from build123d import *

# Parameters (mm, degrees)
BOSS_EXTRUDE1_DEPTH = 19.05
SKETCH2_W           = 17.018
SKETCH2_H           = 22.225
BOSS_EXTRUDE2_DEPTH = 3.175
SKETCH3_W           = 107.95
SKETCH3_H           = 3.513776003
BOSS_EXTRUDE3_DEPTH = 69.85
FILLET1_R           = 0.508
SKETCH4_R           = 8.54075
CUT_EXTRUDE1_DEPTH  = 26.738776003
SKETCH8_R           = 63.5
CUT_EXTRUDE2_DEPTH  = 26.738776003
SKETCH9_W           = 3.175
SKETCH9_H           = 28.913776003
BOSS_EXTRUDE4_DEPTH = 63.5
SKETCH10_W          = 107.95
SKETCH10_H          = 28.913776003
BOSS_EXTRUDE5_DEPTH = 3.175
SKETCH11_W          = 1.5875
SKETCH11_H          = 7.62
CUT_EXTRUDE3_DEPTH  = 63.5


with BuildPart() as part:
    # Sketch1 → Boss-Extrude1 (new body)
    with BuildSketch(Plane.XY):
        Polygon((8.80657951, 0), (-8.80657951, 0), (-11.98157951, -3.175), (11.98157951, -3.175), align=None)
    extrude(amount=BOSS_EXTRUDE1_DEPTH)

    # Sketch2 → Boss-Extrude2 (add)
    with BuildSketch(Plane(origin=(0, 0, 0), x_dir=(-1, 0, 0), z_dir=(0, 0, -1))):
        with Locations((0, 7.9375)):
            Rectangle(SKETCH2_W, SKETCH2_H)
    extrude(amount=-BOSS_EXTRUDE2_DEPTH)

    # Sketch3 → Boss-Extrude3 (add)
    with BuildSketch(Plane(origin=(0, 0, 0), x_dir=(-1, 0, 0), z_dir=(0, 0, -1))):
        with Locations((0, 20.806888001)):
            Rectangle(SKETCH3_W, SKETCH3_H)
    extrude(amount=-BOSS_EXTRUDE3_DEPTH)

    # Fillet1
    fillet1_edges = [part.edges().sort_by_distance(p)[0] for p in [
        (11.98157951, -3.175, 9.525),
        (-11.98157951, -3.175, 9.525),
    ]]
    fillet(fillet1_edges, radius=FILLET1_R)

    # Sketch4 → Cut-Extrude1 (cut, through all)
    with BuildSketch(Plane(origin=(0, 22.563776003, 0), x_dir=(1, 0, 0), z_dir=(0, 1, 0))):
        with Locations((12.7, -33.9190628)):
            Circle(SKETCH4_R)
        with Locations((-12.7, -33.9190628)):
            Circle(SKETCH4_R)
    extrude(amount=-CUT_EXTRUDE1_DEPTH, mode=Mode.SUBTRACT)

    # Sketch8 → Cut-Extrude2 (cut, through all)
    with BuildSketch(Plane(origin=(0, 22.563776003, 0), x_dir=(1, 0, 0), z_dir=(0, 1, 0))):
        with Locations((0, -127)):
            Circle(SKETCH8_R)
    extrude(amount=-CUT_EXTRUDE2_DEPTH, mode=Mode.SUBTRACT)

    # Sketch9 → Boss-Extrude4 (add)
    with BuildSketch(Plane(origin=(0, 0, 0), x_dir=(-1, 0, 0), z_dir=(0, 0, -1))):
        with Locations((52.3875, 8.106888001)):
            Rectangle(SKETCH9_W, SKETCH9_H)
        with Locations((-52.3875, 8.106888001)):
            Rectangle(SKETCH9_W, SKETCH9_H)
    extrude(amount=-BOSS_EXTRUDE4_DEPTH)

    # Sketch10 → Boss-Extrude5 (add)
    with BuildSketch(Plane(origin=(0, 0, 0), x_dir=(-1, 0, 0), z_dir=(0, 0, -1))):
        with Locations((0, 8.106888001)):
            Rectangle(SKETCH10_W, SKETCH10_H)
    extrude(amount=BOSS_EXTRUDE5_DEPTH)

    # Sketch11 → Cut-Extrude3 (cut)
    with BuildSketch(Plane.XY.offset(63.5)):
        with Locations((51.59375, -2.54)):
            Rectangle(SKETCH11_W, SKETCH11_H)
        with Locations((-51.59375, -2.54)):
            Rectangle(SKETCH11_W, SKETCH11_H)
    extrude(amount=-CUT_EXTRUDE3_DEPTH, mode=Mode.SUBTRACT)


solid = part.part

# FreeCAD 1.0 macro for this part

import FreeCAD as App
import Part
import Sketcher
Q = App.Units.Quantity


def edges_at(feature, points):
    """Names of the edges that pass closest to the given points."""
    edges = feature.Shape.Edges
    near = lambda p: min(range(len(edges)), key=lambda i: edges[i].distToShape(Part.Vertex(*p))[0])
    return sorted({f"Edge{near(p) + 1}" for p in points})


def add_polygon(sketch, points):
    """Adds a closed chain of lines whose ends are joined by coincident constraints."""
    first, n = sketch.GeometryCount, len(points)
    for a, b in zip(points, points[1:] + points[:1]):
        sketch.addGeometry(Part.LineSegment(App.Vector(*a, 0), App.Vector(*b, 0)), False)
    for i in range(n):
        sketch.addConstraint(Sketcher.Constraint("Coincident", first + i, 2, first + (i + 1) % n, 1))

doc = App.newDocument("Part")
body = doc.addObject("PartDesign::Body", "Body")

# Sketch on XY plane
sketch1 = body.newObject("Sketcher::SketchObject", "Sketch")
sketch1.AttachmentSupport = (doc.getObject("XY_Plane"), [""])
sketch1.MapMode = "FlatFace"
add_polygon(sketch1, [(8.8, 0), (-8.8, 0), (-12, -3.2), (12, -3.2)])  # lines 0-3
sketch1.addConstraint([
    Sketcher.Constraint("Horizontal", 0),
    Sketcher.Constraint("Horizontal", 2),
    Sketcher.Constraint("Symmetric", 0, 2, 3, 2, -1, 1),
    Sketcher.Constraint("Perpendicular", 1, 3),
    Sketcher.Constraint("Equal", 1, 3),
    Sketcher.Constraint("DistanceY", 1, 2, -1, 1, Q("0.125 in")),
    Sketcher.Constraint("DistanceX", 0, 2, 0, 1, 17.613159),
])
pad1 = body.newObject("PartDesign::Pad", "Pad")
pad1.Profile = sketch1
pad1.Length = Q("0.75 in")

# Sketch on XY plane
sketch2 = body.newObject("Sketcher::SketchObject", "Sketch001")
sketch2.AttachmentSupport = (doc.getObject("XY_Plane"), [""])
sketch2.MapMode = "FlatFace"
add_polygon(sketch2, [(9, 19), (9, -3), (-9, -3), (-9, 19)])  # lines 0-3
sketch2.addConstraint([
    Sketcher.Constraint("Vertical", 0),
    Sketcher.Constraint("Horizontal", 1),
    Sketcher.Constraint("Vertical", 2),
    Sketcher.Constraint("Horizontal", 3),
    Sketcher.Constraint("DistanceX", 1, 2, 1, 1, Q("0.67 in")),
    Sketcher.Constraint("DistanceY", 0, 2, 0, 1, Q("0.875 in")),
    Sketcher.Constraint("DistanceY", -1, 1, 2, 2, Q("0.75 in")),
    Sketcher.Constraint("DistanceX", -1, 1, 0, 2, Q("0.335 in")),
])
pad2 = body.newObject("PartDesign::Pad", "Pad001")
pad2.Profile = sketch2
pad2.Length = Q("0.125 in")

# Sketch on XY plane
sketch3 = body.newObject("Sketcher::SketchObject", "Sketch002")
sketch3.AttachmentSupport = (doc.getObject("XY_Plane"), [""])
sketch3.MapMode = "FlatFace"
add_polygon(sketch3, [(54, 22.6), (54, 19.1), (-54, 19.1), (-54, 22.6)])  # lines 0-3
sketch3.addConstraint([
    Sketcher.Constraint("Vertical", 0),
    Sketcher.Constraint("Horizontal", 1),
    Sketcher.Constraint("Vertical", 2),
    Sketcher.Constraint("Horizontal", 3),
    Sketcher.Constraint("DistanceX", 1, 2, 1, 1, Q("4.25 in")),
    Sketcher.Constraint("DistanceY", -1, 1, 0, 2, Q("0.75 in")),
    Sketcher.Constraint("DistanceX", -1, 1, 0, 2, Q("2.125 in")),
    Sketcher.Constraint("DistanceY", 0, 2, 0, 1, 3.513776),
])
pad3 = body.newObject("PartDesign::Pad", "Pad002")
pad3.Profile = sketch3
pad3.Length = Q("2.75 in")
doc.recompute()

fillet = body.newObject("PartDesign::Fillet", "Fillet")
fillet.Base = (pad3, edges_at(pad3, [(11.982, -3.175, 9.525), (-11.982, -3.175, 9.525)]))
fillet.Radius = Q("0.02 in")

# Sketch on XZ plane
sketch4 = body.newObject("Sketcher::SketchObject", "Sketch003")
sketch4.AttachmentSupport = (doc.getObject("XZ_Plane"), [""])
sketch4.MapMode = "FlatFace"
sketch4.AttachmentOffset = App.Placement(App.Vector(0, 0, -22.563776), App.Rotation())
sketch4.addGeometry([
    Part.Circle(App.Vector(13, 34, 0), App.Vector(0, 0, 1), 9),
    Part.Circle(App.Vector(-13, 34, 0), App.Vector(0, 0, 1), 9),
], False)
sketch4.addConstraint([
    Sketcher.Constraint("Equal", 0, 1),
    Sketcher.Constraint("Symmetric", 0, 3, 1, 3, -2),
    Sketcher.Constraint("DistanceX", 1, 3, 0, 3, Q("1 in")),
    Sketcher.Constraint("Diameter", 0, Q("0.6725 in")),
    Sketcher.Constraint("DistanceY", -1, 1, 0, 3, 33.919063),
])
pocket1 = body.newObject("PartDesign::Pocket", "Pocket")
pocket1.Profile = sketch4
pocket1.Type = "ThroughAll"
pocket1.Reversed = True

# Sketch on XZ plane
sketch5 = body.newObject("Sketcher::SketchObject", "Sketch004")
sketch5.AttachmentSupport = (doc.getObject("XZ_Plane"), [""])
sketch5.MapMode = "FlatFace"
sketch5.AttachmentOffset = App.Placement(App.Vector(0, 0, -22.563776), App.Rotation())
sketch5.addGeometry(Part.Circle(App.Vector(0, 127, 0), App.Vector(0, 0, 1), 64), False)
sketch5.addConstraint([
    Sketcher.Constraint("PointOnObject", 0, 3, -2),
    Sketcher.Constraint("Diameter", 0, Q("5 in")),
    Sketcher.Constraint("DistanceY", -1, 1, 0, 3, Q("5 in")),
])
pocket2 = body.newObject("PartDesign::Pocket", "Pocket001")
pocket2.Profile = sketch5
pocket2.Type = "ThroughAll"
pocket2.Reversed = True

# Sketch on XY plane
sketch6 = body.newObject("Sketcher::SketchObject", "Sketch005")
sketch6.AttachmentSupport = (doc.getObject("XY_Plane"), [""])
sketch6.MapMode = "FlatFace"
add_polygon(sketch6, [(-50.8, 22.6), (-50.8, -6.3), (-54, -6.3), (-54, 22.6)])  # lines 0-3
add_polygon(sketch6, [(54, 22.6), (54, -6.3), (50.8, -6.3), (50.8, 22.6)])  # lines 4-7
sketch6.addConstraint([
    Sketcher.Constraint("Vertical", 0),
    Sketcher.Constraint("Horizontal", 1),
    Sketcher.Constraint("Vertical", 2),
    Sketcher.Constraint("Horizontal", 3),
    Sketcher.Constraint("Vertical", 4),
    Sketcher.Constraint("Horizontal", 5),
    Sketcher.Constraint("Vertical", 6),
    Sketcher.Constraint("Horizontal", 7),
    Sketcher.Constraint("Symmetric", 1, 2, 4, 2, -2),
    Sketcher.Constraint("Symmetric", 3, 2, 6, 2, -2),
    Sketcher.Constraint("DistanceX", 0, 2, -1, 1, Q("2 in")),
    Sketcher.Constraint("DistanceX", 1, 2, 1, 1, Q("0.125 in")),
    Sketcher.Constraint("DistanceY", 0, 2, -1, 1, Q("0.25 in")),
    Sketcher.Constraint("DistanceY", 0, 2, 0, 1, 28.913776),
])
pad4 = body.newObject("PartDesign::Pad", "Pad003")
pad4.Profile = sketch6
pad4.Length = Q("2.5 in")

# Sketch on XY plane
sketch7 = body.newObject("Sketcher::SketchObject", "Sketch006")
sketch7.AttachmentSupport = (doc.getObject("XY_Plane"), [""])
sketch7.MapMode = "FlatFace"
add_polygon(sketch7, [(54, 23), (54, -6), (-54, -6), (-54, 23)])  # lines 0-3
sketch7.addConstraint([
    Sketcher.Constraint("Vertical", 0),
    Sketcher.Constraint("Horizontal", 1),
    Sketcher.Constraint("Vertical", 2),
    Sketcher.Constraint("Horizontal", 3),
    Sketcher.Constraint("DistanceX", 1, 2, 1, 1, Q("4.25 in")),
    Sketcher.Constraint("DistanceY", 0, 2, -1, 1, Q("0.25 in")),
    Sketcher.Constraint("DistanceX", -1, 1, 0, 2, Q("2.125 in")),
    Sketcher.Constraint("DistanceY", 0, 2, 0, 1, 28.913776),
])
pad5 = body.newObject("PartDesign::Pad", "Pad004")
pad5.Profile = sketch7
pad5.Length = Q("0.125 in")
pad5.Reversed = True

# Sketch on XY plane
sketch8 = body.newObject("Sketcher::SketchObject", "Sketch007")
sketch8.AttachmentSupport = (doc.getObject("XY_Plane"), [""])
sketch8.MapMode = "FlatFace"
sketch8.AttachmentOffset = App.Placement(App.Vector(0, 0, 2.5 * 25.4), App.Rotation())
add_polygon(sketch8, [(50.8, 1.3), (50.8, -6.3), (52.4, -6.3), (52.4, 1.3)])  # lines 0-3
add_polygon(sketch8, [(-52.4, 1.3), (-52.4, -6.3), (-50.8, -6.3), (-50.8, 1.3)])  # lines 4-7
sketch8.addConstraint([
    Sketcher.Constraint("Vertical", 0),
    Sketcher.Constraint("Horizontal", 1),
    Sketcher.Constraint("Vertical", 2),
    Sketcher.Constraint("Horizontal", 3),
    Sketcher.Constraint("Vertical", 4),
    Sketcher.Constraint("Horizontal", 5),
    Sketcher.Constraint("Vertical", 6),
    Sketcher.Constraint("Horizontal", 7),
    Sketcher.Constraint("Symmetric", 1, 2, 4, 2, -2),
    Sketcher.Constraint("Symmetric", 3, 2, 6, 2, -2),
    Sketcher.Constraint("DistanceY", 0, 2, 0, 1, Q("0.3 in")),
    Sketcher.Constraint("DistanceX", -1, 1, 0, 2, Q("2 in")),
    Sketcher.Constraint("DistanceX", 1, 1, 1, 2, Q("0.0625 in")),
    Sketcher.Constraint("DistanceY", 0, 2, -1, 1, Q("0.25 in")),
])
pocket3 = body.newObject("PartDesign::Pocket", "Pocket002")
pocket3.Profile = sketch8
pocket3.Length = Q("2.5 in")

doc.recompute()
